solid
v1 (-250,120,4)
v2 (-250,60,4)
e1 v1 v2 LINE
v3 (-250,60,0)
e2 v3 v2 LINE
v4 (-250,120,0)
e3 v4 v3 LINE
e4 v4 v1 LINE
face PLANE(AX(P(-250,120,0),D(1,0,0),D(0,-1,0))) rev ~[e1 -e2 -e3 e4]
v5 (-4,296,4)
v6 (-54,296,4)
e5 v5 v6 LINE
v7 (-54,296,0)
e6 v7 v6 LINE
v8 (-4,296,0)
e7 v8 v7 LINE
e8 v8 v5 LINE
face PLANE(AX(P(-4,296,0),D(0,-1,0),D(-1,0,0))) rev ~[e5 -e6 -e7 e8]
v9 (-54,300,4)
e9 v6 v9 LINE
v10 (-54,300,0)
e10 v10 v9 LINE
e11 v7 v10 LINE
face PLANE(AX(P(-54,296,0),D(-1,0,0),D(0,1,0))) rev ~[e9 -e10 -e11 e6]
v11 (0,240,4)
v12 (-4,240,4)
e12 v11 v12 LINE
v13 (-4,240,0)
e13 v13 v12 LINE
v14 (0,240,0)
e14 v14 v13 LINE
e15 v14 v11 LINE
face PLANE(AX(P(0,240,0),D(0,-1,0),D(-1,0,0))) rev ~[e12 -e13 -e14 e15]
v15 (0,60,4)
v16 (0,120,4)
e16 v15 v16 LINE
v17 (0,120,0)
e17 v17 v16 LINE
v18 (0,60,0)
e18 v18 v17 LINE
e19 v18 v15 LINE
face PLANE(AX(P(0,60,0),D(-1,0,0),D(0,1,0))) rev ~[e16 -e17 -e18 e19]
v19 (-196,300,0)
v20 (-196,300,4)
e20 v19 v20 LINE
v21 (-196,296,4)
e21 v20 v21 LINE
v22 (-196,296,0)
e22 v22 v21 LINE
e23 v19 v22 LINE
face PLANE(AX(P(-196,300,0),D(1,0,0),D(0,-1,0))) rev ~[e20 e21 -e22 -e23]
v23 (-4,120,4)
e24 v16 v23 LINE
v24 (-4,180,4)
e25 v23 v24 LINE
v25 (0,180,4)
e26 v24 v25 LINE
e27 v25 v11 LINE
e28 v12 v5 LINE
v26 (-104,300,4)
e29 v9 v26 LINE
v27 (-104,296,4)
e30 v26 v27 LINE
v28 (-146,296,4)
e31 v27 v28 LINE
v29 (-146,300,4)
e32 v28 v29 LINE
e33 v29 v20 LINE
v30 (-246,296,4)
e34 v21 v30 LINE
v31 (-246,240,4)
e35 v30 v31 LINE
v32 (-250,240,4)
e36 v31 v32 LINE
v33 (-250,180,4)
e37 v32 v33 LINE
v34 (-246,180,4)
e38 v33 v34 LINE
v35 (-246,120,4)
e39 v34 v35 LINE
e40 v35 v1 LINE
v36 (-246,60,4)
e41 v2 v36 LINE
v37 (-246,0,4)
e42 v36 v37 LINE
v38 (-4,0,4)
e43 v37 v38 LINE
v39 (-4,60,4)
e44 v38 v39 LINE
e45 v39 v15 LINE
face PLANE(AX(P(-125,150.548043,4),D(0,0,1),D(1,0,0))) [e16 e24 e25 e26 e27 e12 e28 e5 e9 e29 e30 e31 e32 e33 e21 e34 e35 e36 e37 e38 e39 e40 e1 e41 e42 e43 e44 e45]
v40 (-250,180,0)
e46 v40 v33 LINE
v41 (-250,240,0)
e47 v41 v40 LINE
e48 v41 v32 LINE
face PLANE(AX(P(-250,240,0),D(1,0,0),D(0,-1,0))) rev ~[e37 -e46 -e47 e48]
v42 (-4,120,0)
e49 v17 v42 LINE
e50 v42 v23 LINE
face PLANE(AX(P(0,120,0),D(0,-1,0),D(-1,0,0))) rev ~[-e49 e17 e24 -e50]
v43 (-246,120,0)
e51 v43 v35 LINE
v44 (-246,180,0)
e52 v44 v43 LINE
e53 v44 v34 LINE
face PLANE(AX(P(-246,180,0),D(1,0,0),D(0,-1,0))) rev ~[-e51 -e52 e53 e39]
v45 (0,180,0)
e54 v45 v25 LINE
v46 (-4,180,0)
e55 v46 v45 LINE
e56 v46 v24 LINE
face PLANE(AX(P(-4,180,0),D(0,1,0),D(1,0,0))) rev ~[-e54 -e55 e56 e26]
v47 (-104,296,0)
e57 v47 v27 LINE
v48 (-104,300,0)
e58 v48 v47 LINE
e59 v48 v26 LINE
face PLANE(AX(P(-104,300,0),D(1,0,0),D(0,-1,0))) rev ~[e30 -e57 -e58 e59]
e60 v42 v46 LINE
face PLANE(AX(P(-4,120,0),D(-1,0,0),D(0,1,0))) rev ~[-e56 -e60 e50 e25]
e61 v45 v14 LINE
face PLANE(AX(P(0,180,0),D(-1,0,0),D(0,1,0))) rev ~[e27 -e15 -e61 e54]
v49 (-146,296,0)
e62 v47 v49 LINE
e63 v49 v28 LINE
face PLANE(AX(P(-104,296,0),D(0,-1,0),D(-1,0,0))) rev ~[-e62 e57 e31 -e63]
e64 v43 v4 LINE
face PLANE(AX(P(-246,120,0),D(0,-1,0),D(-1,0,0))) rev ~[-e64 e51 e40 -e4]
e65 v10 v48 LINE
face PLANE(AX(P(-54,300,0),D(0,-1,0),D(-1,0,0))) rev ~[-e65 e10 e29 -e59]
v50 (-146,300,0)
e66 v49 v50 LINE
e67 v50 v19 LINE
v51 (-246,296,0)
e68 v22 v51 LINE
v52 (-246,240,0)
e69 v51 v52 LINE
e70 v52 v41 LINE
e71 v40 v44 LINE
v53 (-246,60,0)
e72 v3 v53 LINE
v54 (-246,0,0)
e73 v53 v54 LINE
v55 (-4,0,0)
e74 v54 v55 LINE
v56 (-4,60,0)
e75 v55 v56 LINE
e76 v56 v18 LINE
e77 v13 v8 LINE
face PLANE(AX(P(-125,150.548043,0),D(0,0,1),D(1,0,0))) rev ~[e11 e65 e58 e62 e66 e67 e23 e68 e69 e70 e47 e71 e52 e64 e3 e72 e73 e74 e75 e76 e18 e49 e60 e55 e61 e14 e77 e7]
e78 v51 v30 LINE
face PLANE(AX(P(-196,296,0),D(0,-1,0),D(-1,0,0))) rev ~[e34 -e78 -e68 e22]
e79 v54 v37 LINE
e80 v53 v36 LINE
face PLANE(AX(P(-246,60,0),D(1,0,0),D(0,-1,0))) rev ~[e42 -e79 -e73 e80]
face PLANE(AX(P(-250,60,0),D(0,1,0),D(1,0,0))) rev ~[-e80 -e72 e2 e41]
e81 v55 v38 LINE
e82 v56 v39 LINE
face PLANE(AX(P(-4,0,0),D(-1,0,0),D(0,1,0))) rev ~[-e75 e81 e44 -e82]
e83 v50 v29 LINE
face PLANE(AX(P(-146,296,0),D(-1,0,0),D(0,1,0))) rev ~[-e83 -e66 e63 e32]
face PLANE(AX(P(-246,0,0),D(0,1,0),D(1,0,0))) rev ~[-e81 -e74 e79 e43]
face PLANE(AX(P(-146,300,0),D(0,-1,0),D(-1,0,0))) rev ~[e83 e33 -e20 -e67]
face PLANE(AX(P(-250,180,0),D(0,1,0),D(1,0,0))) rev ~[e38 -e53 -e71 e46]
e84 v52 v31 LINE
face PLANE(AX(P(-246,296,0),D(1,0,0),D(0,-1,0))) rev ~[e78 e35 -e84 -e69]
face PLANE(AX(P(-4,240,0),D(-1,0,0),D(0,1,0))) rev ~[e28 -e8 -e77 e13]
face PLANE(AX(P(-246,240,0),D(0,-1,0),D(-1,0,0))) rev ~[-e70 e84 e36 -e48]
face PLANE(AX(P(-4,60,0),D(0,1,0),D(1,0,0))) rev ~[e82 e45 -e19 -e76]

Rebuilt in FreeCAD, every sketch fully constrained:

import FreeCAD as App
import Part
import Sketcher
from FreeCAD import Vector


def add_polygon(sketch, points):
    """Adds a closed chain of lines whose ends are joined by coincident constraints."""
    first, n = sketch.GeometryCount, len(points)
    for a, b in zip(points, points[1:] + points[:1]):
        sketch.addGeometry(Part.LineSegment(App.Vector(*a, 0), App.Vector(*b, 0)), False)
    for i in range(n):
        sketch.addConstraint(Sketcher.Constraint("Coincident", first + i, 2, first + (i + 1) % n, 1))

doc = App.newDocument("Part")
body = doc.addObject("PartDesign::Body", "Body")

sketch1 = body.newObject("Sketcher::SketchObject", "Sketch")
sketch1.AttachmentSupport = (doc.getObject("XY_Plane"), [""])
sketch1.MapMode = "FlatFace"
add_polygon(sketch1, [(-246, 0), (-4, 0), (-4, 60), (0, 60), (0, 120), (-4, 120), (-4, 180), (0, 180), (0, 240), (-4, 240), (-4, 296), (-54, 296), (-54, 300), (-104, 300), (-104, 296), (-146, 296), (-146, 300), (-196, 300), (-196, 296), (-246, 296), (-246, 240), (-250, 240), (-250, 180), (-246, 180), (-246, 120), (-250, 120), (-250, 60), (-246, 60)])
sketch1.addConstraint([
    Sketcher.Constraint("Horizontal", 0),
    Sketcher.Constraint("Vertical", 1),
    Sketcher.Constraint("Horizontal", 2),
    Sketcher.Constraint("Vertical", 3),
    Sketcher.Constraint("Horizontal", 4),
    Sketcher.Constraint("Vertical", 5),
    Sketcher.Constraint("Horizontal", 6),
    Sketcher.Constraint("Vertical", 7),
    Sketcher.Constraint("Horizontal", 8),
    Sketcher.Constraint("Vertical", 9),
    Sketcher.Constraint("Horizontal", 10),
    Sketcher.Constraint("Vertical", 11),
    Sketcher.Constraint("Horizontal", 12),
    Sketcher.Constraint("Vertical", 13),
    Sketcher.Constraint("Horizontal", 14),
    Sketcher.Constraint("Vertical", 15),
    Sketcher.Constraint("Horizontal", 16),
    Sketcher.Constraint("Vertical", 17),
    Sketcher.Constraint("Horizontal", 18),
    Sketcher.Constraint("Vertical", 19),
    Sketcher.Constraint("Horizontal", 20),
    Sketcher.Constraint("Vertical", 21),
    Sketcher.Constraint("Horizontal", 22),
    Sketcher.Constraint("Vertical", 23),
    Sketcher.Constraint("Horizontal", 24),
    Sketcher.Constraint("Vertical", 25),
    Sketcher.Constraint("Horizontal", 26),
    Sketcher.Constraint("Vertical", 27),
    Sketcher.Constraint("PointOnObject", 0, 2, -1),
    Sketcher.Constraint("PointOnObject", 2, 2, -2),
    Sketcher.Constraint("PointOnObject", 6, 2, -2),
    Sketcher.Constraint("Horizontal", 10, 2, 13, 2),
    Sketcher.Constraint("Horizontal", 12, 2, 15, 2),
    Sketcher.Constraint("Horizontal", 14, 2, 17, 2),
    Sketcher.Constraint("Horizontal", 8, 2, 19, 2),
    Sketcher.Constraint("Horizontal", 6, 2, 21, 2),
    Sketcher.Constraint("Horizontal", 4, 2, 23, 2),
    Sketcher.Constraint("Horizontal", 2, 2, 25, 2),
    Sketcher.Constraint("Vertical", 1, 2, 4, 2),
    Sketcher.Constraint("Vertical", 5, 2, 8, 2),
    Sketcher.Constraint("Vertical", 19, 2, 22, 2),
    Sketcher.Constraint("Vertical", 21, 2, 24, 2),
    Sketcher.Constraint("Vertical", 23, 2, 26, 2),
    Sketcher.Constraint("Equal", 10, 12),
    Sketcher.Constraint("Equal", 12, 16),
    Sketcher.Constraint("Equal", 16, 18),
    Sketcher.Constraint("Equal", 8, 20),
    Sketcher.Constraint("Equal", 1, 3),
    Sketcher.Constraint("Equal", 3, 5),
    Sketcher.Constraint("Equal", 5, 7),
    Sketcher.Constraint("Equal", 26, 11),
    Sketcher.Constraint("DistanceX", 0, 1, 0, 2, 242.0),
    Sketcher.Constraint("DistanceX", 2, 1, 2, 2, 4.0),
    Sketcher.Constraint("DistanceX", 10, 2, 10, 1, 50.0),
    Sketcher.Constraint("DistanceY", 1, 1, 1, 2, 60.0),
    Sketcher.Constraint("DistanceY", 9, 1, 9, 2, 56.0),
])
pad1 = body.newObject("PartDesign::Pad", "Pad")
pad1.Profile = sketch1
pad1.Length = 4

doc.recompute()
